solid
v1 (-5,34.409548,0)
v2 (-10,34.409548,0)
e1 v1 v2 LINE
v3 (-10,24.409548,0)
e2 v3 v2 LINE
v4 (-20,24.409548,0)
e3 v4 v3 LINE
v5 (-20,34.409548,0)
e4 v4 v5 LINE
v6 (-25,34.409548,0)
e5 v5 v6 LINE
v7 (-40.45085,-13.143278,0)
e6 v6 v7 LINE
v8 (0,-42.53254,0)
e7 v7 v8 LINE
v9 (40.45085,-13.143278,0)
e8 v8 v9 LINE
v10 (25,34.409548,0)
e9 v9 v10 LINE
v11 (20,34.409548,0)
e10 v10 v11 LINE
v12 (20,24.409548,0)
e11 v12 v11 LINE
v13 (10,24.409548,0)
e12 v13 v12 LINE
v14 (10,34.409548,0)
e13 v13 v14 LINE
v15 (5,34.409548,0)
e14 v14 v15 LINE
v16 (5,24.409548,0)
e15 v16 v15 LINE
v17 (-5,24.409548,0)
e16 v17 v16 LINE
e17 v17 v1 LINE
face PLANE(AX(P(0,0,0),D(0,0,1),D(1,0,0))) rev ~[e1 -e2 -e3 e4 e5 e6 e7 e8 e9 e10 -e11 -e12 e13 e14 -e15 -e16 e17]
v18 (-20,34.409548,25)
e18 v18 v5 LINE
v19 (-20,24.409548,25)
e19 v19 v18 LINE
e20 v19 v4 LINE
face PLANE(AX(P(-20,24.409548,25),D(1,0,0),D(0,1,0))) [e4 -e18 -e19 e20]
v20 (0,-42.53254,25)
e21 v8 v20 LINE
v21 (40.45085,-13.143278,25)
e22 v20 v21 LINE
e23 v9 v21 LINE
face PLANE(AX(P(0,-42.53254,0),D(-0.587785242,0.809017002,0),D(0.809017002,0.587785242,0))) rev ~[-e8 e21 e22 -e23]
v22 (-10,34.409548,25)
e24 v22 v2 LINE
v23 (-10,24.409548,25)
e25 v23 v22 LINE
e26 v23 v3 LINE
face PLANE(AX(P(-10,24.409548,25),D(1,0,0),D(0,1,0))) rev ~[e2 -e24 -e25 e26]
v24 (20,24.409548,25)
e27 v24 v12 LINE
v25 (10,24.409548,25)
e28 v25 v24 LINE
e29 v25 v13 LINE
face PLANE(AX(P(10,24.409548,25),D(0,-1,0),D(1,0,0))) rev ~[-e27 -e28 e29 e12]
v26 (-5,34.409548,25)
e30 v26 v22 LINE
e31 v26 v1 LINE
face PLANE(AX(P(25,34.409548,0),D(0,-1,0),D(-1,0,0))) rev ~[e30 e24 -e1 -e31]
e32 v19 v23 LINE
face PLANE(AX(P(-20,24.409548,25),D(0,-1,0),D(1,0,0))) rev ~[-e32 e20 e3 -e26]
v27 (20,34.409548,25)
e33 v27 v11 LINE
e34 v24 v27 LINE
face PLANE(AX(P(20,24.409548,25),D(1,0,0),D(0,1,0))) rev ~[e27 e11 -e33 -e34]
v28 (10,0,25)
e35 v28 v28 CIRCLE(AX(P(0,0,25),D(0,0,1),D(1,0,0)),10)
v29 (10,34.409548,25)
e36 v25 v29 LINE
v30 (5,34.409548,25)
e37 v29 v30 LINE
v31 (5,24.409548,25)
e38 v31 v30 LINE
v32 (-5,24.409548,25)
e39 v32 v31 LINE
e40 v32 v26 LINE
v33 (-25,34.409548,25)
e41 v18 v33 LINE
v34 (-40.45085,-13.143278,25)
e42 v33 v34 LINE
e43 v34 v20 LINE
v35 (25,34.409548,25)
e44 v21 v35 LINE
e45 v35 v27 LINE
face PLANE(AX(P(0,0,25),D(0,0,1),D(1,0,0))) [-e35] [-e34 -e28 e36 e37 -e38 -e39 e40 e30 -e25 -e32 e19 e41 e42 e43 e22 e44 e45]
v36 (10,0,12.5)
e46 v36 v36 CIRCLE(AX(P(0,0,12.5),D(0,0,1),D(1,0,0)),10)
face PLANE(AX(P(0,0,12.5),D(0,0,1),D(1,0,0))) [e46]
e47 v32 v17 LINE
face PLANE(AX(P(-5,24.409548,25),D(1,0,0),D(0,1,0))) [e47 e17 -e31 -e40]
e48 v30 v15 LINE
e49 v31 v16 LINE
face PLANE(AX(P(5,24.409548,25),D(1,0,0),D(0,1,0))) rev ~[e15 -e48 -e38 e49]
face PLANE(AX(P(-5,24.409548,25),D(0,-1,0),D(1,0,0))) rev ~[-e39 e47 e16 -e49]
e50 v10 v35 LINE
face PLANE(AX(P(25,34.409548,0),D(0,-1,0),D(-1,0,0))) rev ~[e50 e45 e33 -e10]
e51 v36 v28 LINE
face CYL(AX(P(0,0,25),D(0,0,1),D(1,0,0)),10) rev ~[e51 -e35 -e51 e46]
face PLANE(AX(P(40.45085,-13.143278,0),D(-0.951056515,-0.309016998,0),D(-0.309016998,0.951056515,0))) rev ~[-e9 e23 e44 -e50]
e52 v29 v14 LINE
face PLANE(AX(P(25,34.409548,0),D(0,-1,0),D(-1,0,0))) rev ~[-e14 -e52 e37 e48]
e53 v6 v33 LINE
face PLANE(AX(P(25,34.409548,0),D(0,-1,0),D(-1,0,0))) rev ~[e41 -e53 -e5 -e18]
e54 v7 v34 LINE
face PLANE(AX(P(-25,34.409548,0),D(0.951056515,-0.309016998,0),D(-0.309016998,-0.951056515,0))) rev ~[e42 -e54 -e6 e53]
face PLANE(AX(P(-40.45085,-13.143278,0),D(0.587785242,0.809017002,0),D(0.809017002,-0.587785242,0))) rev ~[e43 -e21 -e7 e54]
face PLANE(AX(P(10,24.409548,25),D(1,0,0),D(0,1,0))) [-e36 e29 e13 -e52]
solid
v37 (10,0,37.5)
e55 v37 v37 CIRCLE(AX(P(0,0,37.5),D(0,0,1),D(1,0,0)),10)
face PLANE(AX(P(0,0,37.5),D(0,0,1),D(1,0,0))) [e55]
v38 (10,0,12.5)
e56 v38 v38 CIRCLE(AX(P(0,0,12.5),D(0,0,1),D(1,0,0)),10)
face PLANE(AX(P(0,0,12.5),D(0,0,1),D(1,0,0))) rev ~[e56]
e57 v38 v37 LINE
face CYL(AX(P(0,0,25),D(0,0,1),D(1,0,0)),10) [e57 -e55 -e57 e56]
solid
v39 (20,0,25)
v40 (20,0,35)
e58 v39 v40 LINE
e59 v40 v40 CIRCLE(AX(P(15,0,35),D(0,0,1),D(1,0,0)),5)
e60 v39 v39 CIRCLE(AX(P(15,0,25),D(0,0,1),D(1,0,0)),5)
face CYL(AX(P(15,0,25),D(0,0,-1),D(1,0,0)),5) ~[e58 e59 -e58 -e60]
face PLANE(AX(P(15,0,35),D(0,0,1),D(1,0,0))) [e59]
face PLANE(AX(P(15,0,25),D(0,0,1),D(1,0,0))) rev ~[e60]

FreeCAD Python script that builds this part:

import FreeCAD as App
import Part
import Sketcher
Q = App.Units.Quantity

doc = App.newDocument("Part")
body = doc.addObject("PartDesign::Body", "Body")

sketch1 = body.newObject("Sketcher::SketchObject", "Sketch")
sketch1.AttachmentSupport = (doc.getObject("XY_Plane"), [""])
sketch1.MapMode = "FlatFace"
sketch1.addGeometry([
    Part.LineSegment(App.Vector(-25, 34, 0), App.Vector(-40, -13, 0)),
    Part.LineSegment(App.Vector(-40, -13, 0), App.Vector(0, -43, 0)),
    Part.LineSegment(App.Vector(0, -43, 0), App.Vector(40, -13, 0)),
    Part.LineSegment(App.Vector(40, -13, 0), App.Vector(25, 34, 0)),
    Part.LineSegment(App.Vector(25, 34, 0), App.Vector(-25, 34, 0)),
], False)
sketch1.addConstraint([
    Sketcher.Constraint("Coincident", 0, 2, 1, 1),
    Sketcher.Constraint("Coincident", 1, 2, 2, 1),
    Sketcher.Constraint("Coincident", 2, 2, 3, 1),
    Sketcher.Constraint("Coincident", 3, 2, 4, 1),
    Sketcher.Constraint("Coincident", 4, 2, 0, 1),
    Sketcher.Constraint("Horizontal", 4),
    Sketcher.Constraint("Symmetric", 0, 2, 2, 2, -2),
    Sketcher.Constraint("PointOnObject", 1, 2, -2),
    Sketcher.Constraint("Equal", 0, 1),
    Sketcher.Constraint("Equal", 2, 3),
    Sketcher.Constraint("DistanceX", 4, 2, 4, 1, 50.0),
    Sketcher.Constraint("Angle", 0, Q("-108 deg")),
    Sketcher.Constraint("Angle", 1, Q("-35.999999 deg")),
    Sketcher.Constraint("DistanceY", 1, 2, -1, 1, 42.53254),
])
pad1 = body.newObject("PartDesign::Pad", "Pad")
pad1.Profile = sketch1
pad1.Length = 25

sketch2 = body.newObject("Sketcher::SketchObject", "Sketch001")
sketch2.AttachmentSupport = (doc.getObject("XY_Plane"), [""])
sketch2.MapMode = "FlatFace"
sketch2.AttachmentOffset = App.Placement(App.Vector(0, 0, 25), App.Rotation())
sketch2.addGeometry([
    Part.LineSegment(App.Vector(-20, 34, 0), App.Vector(-20, 24, 0)),
    Part.LineSegment(App.Vector(-20, 24, 0), App.Vector(-10, 24, 0)),
    Part.LineSegment(App.Vector(-10, 24, 0), App.Vector(-10, 34, 0)),
    Part.LineSegment(App.Vector(-10, 34, 0), App.Vector(-20, 34, 0)),
    Part.LineSegment(App.Vector(-5, 34, 0), App.Vector(-5, 24, 0)),
    Part.LineSegment(App.Vector(-5, 24, 0), App.Vector(5, 24, 0)),
    Part.LineSegment(App.Vector(5, 24, 0), App.Vector(5, 34, 0)),
    Part.LineSegment(App.Vector(5, 34, 0), App.Vector(-5, 34, 0)),
    Part.LineSegment(App.Vector(10, 34, 0), App.Vector(10, 24, 0)),
    Part.LineSegment(App.Vector(10, 24, 0), App.Vector(20, 24, 0)),
    Part.LineSegment(App.Vector(20, 24, 0), App.Vector(20, 34, 0)),
    Part.LineSegment(App.Vector(20, 34, 0), App.Vector(10, 34, 0)),
], False)
sketch2.addConstraint([
    Sketcher.Constraint("Coincident", 0, 2, 1, 1),
    Sketcher.Constraint("Coincident", 1, 2, 2, 1),
    Sketcher.Constraint("Coincident", 2, 2, 3, 1),
    Sketcher.Constraint("Coincident", 3, 2, 0, 1),
    Sketcher.Constraint("Coincident", 4, 2, 5, 1),
    Sketcher.Constraint("Coincident", 5, 2, 6, 1),
    Sketcher.Constraint("Coincident", 6, 2, 7, 1),
    Sketcher.Constraint("Coincident", 7, 2, 4, 1),
    Sketcher.Constraint("Coincident", 8, 2, 9, 1),
    Sketcher.Constraint("Coincident", 9, 2, 10, 1),
    Sketcher.Constraint("Coincident", 10, 2, 11, 1),
    Sketcher.Constraint("Coincident", 11, 2, 8, 1),
    Sketcher.Constraint("Vertical", 0),
    Sketcher.Constraint("Horizontal", 1),
    Sketcher.Constraint("Vertical", 2),
    Sketcher.Constraint("Horizontal", 3),
    Sketcher.Constraint("Vertical", 4),
    Sketcher.Constraint("Horizontal", 5),
    Sketcher.Constraint("Vertical", 6),
    Sketcher.Constraint("Horizontal", 7),
    Sketcher.Constraint("Vertical", 8),
    Sketcher.Constraint("Horizontal", 9),
    Sketcher.Constraint("Vertical", 10),
    Sketcher.Constraint("Horizontal", 11),
    Sketcher.Constraint("Symmetric", 1, 2, 8, 2, -2),
    Sketcher.Constraint("Symmetric", 3, 2, 10, 2, -2),
    Sketcher.Constraint("Horizontal", 1, 2, 4, 2),
    Sketcher.Constraint("Horizontal", 3, 2, 6, 2),
    Sketcher.Constraint("Equal", 3, 5),
    Sketcher.Constraint("Equal", 11, 0),
    Sketcher.Constraint("DistanceX", 1, 1, 1, 2, 10.0),
    Sketcher.Constraint("DistanceX", 0, 2, -1, 1, 20.0),
    Sketcher.Constraint("DistanceX", 4, 2, -1, 1, 5.0),
    Sketcher.Constraint("DistanceY", -1, 1, 0, 2, 24.409548),
])
pocket1 = body.newObject("PartDesign::Pocket", "Pocket")
pocket1.Profile = sketch2
pocket1.Type = "ThroughAll"
body2 = doc.addObject("PartDesign::Body", "Body001")

sketch3 = body2.newObject("Sketcher::SketchObject", "Sketch002")
sketch3.AttachmentSupport = (doc.getObject("XY_Plane001"), [""])
sketch3.MapMode = "FlatFace"
sketch3.AttachmentOffset = App.Placement(App.Vector(0, 0, 25), App.Rotation())
sketch3.addGeometry(Part.Circle(App.Vector(0, 0, 0), App.Vector(0, 0, 1), 10), False)
sketch3.addConstraint([
    Sketcher.Constraint("Coincident", 0, 3, -1, 1),
    Sketcher.Constraint("Diameter", 0, 20.0),
])
pad2 = body2.newObject("PartDesign::Pad", "Pad001")
pad2.Profile = sketch3
pad2.Length = 25
pad2.Midplane = True
doc.recompute()

body3 = doc.addObject("PartDesign::Body", "Body002")
body3.BaseFeature = body2
boolean = body.newObject("PartDesign::Boolean", "Boolean")
boolean.Type = "Cut"
boolean.addObjects([body3])
doc.recompute()
body4 = doc.addObject("PartDesign::Body", "Body003")

sketch4 = body4.newObject("Sketcher::SketchObject", "Sketch003")
sketch4.AttachmentSupport = (doc.getObject("XY_Plane003"), [""])
sketch4.MapMode = "FlatFace"
sketch4.AttachmentOffset = App.Placement(App.Vector(0, 0, 25), App.Rotation())
sketch4.addGeometry(Part.Circle(App.Vector(15, 0, 0), App.Vector(0, 0, 1), 5), False)
sketch4.addConstraint([
    Sketcher.Constraint("PointOnObject", 0, 3, -1),
    Sketcher.Constraint("Diameter", 0, 10.0),
    Sketcher.Constraint("DistanceX", -1, 1, 0, 3, 15.0),
])
pad3 = body4.newObject("PartDesign::Pad", "Pad002")
pad3.Profile = sketch4
pad3.Length = 10

doc.recompute()
